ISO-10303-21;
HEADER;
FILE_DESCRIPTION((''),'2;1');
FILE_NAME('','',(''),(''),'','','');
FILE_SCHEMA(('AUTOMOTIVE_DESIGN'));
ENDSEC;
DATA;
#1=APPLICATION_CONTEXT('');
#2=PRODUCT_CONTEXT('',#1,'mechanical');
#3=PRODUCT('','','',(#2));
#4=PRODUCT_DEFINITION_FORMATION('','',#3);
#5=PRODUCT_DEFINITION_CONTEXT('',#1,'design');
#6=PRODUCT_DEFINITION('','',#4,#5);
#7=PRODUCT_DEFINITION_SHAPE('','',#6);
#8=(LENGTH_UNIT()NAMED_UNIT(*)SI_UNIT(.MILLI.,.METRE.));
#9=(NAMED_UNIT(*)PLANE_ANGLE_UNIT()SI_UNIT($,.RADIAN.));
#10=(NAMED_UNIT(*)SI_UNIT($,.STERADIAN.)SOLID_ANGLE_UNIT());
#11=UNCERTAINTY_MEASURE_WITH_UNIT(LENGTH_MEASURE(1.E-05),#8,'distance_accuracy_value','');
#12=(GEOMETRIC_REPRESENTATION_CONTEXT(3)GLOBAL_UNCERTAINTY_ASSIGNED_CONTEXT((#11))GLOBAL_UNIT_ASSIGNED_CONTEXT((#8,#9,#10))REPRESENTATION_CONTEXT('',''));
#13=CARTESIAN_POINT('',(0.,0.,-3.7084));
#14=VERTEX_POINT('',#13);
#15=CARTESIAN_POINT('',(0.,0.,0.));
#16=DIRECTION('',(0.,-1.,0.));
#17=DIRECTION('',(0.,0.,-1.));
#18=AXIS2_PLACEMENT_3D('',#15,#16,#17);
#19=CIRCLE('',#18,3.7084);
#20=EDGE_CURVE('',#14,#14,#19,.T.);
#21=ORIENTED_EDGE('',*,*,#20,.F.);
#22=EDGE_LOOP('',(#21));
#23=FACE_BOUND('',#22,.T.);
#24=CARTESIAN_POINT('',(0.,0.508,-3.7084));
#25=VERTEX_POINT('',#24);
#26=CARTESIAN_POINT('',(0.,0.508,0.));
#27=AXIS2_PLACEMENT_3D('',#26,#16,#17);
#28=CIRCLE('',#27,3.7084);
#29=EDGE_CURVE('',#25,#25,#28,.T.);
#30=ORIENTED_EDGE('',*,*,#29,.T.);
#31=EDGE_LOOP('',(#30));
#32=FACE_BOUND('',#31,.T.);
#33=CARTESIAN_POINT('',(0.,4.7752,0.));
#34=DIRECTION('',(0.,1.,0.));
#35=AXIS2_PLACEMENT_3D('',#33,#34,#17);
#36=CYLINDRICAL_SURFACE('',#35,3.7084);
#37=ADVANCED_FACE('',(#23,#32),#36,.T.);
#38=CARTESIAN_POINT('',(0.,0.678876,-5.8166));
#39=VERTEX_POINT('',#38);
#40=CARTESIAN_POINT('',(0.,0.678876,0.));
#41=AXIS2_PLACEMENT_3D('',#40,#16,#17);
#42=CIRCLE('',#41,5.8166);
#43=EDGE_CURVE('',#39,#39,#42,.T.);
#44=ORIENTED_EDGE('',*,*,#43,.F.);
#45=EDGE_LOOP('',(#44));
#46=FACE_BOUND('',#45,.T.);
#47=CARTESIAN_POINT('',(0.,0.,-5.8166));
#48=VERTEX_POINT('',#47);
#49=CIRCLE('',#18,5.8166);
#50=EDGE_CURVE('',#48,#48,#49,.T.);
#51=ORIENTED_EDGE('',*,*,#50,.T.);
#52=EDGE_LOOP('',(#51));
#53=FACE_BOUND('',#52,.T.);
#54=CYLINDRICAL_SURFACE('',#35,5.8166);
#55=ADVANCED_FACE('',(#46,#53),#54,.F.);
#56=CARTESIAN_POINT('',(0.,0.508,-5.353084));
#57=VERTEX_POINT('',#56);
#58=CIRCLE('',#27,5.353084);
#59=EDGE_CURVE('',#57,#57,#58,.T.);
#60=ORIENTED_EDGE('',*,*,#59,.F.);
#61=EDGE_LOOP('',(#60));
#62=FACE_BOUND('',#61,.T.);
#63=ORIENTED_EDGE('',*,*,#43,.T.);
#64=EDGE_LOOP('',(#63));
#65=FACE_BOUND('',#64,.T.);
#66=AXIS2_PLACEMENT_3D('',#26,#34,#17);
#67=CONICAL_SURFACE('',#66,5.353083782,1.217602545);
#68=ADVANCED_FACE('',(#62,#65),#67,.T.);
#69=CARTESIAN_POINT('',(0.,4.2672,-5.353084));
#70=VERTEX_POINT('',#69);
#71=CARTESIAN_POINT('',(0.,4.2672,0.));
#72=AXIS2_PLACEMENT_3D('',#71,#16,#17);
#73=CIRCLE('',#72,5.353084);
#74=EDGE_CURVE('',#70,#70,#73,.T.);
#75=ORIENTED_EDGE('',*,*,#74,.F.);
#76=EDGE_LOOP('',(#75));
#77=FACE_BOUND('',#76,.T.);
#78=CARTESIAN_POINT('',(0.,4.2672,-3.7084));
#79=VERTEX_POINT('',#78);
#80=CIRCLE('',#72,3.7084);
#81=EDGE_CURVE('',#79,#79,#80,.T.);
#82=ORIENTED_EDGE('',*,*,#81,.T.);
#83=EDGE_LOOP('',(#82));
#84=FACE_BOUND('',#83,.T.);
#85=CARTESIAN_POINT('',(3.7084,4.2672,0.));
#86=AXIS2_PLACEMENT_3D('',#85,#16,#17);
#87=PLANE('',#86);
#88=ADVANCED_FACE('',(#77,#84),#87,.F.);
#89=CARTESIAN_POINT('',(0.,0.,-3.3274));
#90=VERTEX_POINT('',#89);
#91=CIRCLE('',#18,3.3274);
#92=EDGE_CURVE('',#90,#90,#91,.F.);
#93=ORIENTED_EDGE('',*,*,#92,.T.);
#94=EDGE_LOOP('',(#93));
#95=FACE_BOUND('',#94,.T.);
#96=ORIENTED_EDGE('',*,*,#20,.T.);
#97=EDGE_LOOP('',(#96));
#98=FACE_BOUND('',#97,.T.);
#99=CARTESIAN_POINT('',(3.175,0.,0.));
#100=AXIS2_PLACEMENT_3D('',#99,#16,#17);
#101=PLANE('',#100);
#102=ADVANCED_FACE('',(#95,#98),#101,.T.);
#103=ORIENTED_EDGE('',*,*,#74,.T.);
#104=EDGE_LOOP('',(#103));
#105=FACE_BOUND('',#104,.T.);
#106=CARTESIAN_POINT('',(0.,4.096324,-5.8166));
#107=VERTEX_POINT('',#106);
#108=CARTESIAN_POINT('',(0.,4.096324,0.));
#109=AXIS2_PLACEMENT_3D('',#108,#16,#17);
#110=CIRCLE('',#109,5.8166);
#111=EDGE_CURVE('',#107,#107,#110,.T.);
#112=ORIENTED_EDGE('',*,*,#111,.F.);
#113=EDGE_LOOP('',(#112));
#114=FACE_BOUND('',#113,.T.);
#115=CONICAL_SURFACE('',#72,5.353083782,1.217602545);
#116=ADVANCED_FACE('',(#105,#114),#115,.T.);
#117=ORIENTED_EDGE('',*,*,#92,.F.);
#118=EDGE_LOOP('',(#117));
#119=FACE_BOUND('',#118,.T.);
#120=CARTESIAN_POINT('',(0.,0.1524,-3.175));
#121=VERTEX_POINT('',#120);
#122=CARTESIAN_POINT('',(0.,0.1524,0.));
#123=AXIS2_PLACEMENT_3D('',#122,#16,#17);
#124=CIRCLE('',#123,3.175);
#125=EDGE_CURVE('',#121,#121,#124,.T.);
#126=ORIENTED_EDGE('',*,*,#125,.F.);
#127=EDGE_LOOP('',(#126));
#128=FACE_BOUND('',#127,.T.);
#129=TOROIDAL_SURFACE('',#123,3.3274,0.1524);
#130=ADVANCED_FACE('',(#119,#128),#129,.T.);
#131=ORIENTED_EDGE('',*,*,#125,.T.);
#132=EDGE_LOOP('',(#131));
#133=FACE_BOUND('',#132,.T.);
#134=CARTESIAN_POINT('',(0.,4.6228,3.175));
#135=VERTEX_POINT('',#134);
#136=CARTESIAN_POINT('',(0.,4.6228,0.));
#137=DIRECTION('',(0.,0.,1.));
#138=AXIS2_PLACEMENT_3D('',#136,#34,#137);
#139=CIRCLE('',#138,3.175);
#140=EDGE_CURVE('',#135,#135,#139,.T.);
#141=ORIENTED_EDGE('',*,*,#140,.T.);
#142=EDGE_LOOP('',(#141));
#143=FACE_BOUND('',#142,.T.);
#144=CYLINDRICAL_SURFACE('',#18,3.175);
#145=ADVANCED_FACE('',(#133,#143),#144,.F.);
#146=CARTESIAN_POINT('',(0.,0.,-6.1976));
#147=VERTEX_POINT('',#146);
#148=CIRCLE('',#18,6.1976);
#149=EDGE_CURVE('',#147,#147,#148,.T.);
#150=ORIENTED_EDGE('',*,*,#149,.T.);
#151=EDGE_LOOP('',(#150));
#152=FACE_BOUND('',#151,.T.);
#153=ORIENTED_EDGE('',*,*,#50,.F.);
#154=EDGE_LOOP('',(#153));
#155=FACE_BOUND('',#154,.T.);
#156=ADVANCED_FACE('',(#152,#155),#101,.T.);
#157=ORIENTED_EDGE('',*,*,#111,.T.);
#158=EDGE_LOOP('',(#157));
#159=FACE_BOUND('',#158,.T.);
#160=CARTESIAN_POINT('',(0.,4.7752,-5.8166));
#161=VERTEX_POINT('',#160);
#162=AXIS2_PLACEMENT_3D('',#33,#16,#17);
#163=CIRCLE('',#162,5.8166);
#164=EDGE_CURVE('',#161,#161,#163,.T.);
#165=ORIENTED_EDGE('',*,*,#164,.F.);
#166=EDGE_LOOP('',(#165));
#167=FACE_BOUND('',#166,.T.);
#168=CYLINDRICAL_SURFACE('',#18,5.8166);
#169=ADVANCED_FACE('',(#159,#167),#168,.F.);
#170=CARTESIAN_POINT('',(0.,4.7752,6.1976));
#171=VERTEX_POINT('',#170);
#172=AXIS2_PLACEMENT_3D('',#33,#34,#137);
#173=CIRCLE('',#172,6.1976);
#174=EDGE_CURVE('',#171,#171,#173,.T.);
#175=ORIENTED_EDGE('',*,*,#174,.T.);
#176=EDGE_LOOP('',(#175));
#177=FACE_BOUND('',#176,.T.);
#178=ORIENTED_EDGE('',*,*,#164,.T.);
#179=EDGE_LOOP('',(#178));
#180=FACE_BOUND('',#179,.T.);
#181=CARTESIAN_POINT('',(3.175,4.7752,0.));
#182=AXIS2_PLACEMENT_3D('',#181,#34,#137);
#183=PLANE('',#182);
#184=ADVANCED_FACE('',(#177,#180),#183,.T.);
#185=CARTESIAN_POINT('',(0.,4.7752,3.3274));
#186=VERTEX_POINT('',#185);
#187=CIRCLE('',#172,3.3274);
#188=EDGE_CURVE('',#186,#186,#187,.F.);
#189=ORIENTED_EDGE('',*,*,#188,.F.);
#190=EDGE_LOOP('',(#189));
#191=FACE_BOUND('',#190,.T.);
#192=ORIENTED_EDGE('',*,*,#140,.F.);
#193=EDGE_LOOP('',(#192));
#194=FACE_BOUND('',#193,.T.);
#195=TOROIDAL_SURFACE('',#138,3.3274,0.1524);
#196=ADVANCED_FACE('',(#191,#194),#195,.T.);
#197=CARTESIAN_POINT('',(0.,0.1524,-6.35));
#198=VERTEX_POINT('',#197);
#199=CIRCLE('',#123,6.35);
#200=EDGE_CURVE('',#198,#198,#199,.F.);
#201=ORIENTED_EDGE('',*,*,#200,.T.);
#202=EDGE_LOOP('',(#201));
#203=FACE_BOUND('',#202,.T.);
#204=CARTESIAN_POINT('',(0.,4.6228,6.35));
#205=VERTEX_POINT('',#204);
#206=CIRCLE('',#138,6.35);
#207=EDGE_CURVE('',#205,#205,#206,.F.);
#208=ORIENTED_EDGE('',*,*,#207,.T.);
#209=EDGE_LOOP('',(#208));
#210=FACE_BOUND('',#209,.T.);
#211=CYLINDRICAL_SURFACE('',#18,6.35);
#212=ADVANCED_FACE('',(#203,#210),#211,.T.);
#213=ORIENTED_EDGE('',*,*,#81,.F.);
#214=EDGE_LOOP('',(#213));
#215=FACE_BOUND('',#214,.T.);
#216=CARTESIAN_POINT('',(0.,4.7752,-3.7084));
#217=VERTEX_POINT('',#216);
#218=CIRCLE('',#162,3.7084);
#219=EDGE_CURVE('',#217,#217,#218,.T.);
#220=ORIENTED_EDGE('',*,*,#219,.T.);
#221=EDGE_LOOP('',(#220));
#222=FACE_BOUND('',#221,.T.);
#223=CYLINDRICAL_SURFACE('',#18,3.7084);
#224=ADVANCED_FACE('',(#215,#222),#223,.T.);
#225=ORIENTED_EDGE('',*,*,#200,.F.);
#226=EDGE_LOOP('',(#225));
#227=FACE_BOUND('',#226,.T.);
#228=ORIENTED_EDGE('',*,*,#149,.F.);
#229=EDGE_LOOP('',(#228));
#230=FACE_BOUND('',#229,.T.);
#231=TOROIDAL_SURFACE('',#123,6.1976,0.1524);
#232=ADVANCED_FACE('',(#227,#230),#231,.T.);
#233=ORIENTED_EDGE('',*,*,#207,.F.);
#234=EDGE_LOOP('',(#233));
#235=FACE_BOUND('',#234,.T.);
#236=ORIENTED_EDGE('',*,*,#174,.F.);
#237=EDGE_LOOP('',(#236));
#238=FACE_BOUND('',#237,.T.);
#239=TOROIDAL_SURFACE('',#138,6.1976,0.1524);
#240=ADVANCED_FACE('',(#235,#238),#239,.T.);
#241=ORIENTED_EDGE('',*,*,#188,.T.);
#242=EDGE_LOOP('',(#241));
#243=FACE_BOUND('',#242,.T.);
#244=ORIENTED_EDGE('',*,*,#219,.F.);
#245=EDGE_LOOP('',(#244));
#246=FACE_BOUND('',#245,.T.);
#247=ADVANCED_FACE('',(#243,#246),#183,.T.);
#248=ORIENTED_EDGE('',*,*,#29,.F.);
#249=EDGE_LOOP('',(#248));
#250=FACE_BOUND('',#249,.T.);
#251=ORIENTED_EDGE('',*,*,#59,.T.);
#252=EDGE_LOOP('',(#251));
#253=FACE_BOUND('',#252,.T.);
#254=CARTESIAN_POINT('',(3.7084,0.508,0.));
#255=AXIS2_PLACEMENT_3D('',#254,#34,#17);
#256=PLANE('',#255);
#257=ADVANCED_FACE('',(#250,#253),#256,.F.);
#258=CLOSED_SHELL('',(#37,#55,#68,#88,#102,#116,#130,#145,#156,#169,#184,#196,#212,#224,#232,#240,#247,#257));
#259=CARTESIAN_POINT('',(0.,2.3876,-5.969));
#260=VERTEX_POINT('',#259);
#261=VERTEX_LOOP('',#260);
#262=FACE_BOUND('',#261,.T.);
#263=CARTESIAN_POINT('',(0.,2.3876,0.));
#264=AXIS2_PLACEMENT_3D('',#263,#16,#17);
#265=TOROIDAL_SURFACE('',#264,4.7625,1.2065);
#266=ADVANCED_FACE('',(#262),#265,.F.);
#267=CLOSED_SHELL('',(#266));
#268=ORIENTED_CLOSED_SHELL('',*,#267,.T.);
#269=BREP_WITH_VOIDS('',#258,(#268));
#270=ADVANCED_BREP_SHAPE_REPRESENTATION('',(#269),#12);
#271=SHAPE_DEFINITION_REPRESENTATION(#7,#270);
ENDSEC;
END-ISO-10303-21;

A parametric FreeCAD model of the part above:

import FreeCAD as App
import Part
import Sketcher

V = App.Vector
Q = App.Units.Quantity


def edges_at(feature, points):
    """Names of the edges that pass closest to the given points."""
    edges = feature.Shape.Edges
    near = lambda p: min(range(len(edges)), key=lambda i: edges[i].distToShape(Part.Vertex(*p))[0])
    return sorted({f"Edge{near(p) + 1}" for p in points})


def add_polygon(sketch, points):
    """Adds a closed chain of lines whose ends are joined by coincident constraints."""
    first, n = sketch.GeometryCount, len(points)
    for a, b in zip(points, points[1:] + points[:1]):
        sketch.addGeometry(Part.LineSegment(App.Vector(*a, 0), App.Vector(*b, 0)), False)
    for i in range(n):
        sketch.addConstraint(Sketcher.Constraint("Coincident", first + i, 2, first + (i + 1) % n, 1))

doc = App.newDocument("Part")
body = doc.addObject("PartDesign::Body", "Body")

sketch1 = body.newObject("Sketcher::SketchObject", "Sketch")
sketch1.AttachmentSupport = (doc.getObject("XY_Plane"), [""])
sketch1.MapMode = "FlatFace"
add_polygon(sketch1, [(3.2, 4.8), (3.2, 0), (6.3, 0), (6.3, 4.8)])
sketch1.addGeometry(Part.Circle(V(4.8, 2.4, 0), V(0, 0, 1), 1.2), False)
sketch1.addConstraint([
    Sketcher.Constraint("Vertical", 0),
    Sketcher.Constraint("Horizontal", 1),
    Sketcher.Constraint("Vertical", 2),
    Sketcher.Constraint("Horizontal", 3),
    Sketcher.Constraint("PointOnObject", 0, 2, -1),
    Sketcher.Constraint("Diameter", 4, Q("0.095 in")),
    Sketcher.Constraint("DistanceX", 1, 1, 1, 2, Q("0.125 in")),
    Sketcher.Constraint("DistanceY", 0, 2, 0, 1, Q("0.188 in")),
    Sketcher.Constraint("DistanceX", -1, 1, 1, 2, Q("0.25 in")),
    Sketcher.Constraint("DistanceX", -1, 1, 4, 3, Q("0.1875 in")),
    Sketcher.Constraint("DistanceY", -1, 1, 4, 3, Q("0.094 in")),
])
revolution = body.newObject("PartDesign::Revolution", "Revolution")
revolution.Profile = sketch1
revolution.ReferenceAxis = (sketch1, ["V_Axis"])
revolution.Angle = 360

sketch2 = body.newObject("Sketcher::SketchObject", "Sketch001")
sketch2.AttachmentSupport = (doc.getObject("XY_Plane"), [""])
sketch2.MapMode = "FlatFace"
add_polygon(sketch2, [(3.71, 4.78), (3.71, 4.27), (5.35, 4.27), (5.82, 4.1), (5.82, 4.78)])
sketch2.addConstraint([
    Sketcher.Constraint("Vertical", 0),
    Sketcher.Constraint("Horizontal", 1),
    Sketcher.Constraint("Vertical", 3),
    Sketcher.Constraint("Horizontal", 4),
    Sketcher.Constraint("DistanceY", 0, 2, 0, 1, Q("0.02 in")),
    Sketcher.Constraint("DistanceX", 4, 2, 4, 1, Q("0.083 in")),
    Sketcher.Constraint("DistanceX", -1, 1, 0, 2, Q("0.146 in")),
    Sketcher.Constraint("DistanceY", -1, 1, 0, 2, Q("0.168 in")),
    Sketcher.Constraint("Distance", 2, 0.49401),
    Sketcher.Constraint("DistanceX", 1, 1, 1, 2, 1.644684),
])
groove = body.newObject("PartDesign::Groove", "Groove")
groove.Profile = sketch2
groove.ReferenceAxis = (sketch2, ["V_Axis"])
groove.Angle = 360
doc.recompute()

datumplane = body.newObject("PartDesign::Plane", "DatumPlane")
datumplane.AttachmentSupport = (doc.getObject("XZ_Plane"), [""])
datumplane.MapMode = "FlatFace"
datumplane.AttachmentOffset = App.Placement(V(0, 0, -0.094 * 25.4), App.Rotation())
mirrored = body.newObject("PartDesign::Mirrored", "Mirrored")
mirrored.Originals = [groove]
mirrored.MirrorPlane = (datumplane, [""])
body.Tip = mirrored
doc.recompute()

fillet = body.newObject("PartDesign::Fillet", "Fillet")
fillet.Base = (mirrored, edges_at(mirrored, [
    (-3.175, 4.775, 0),
    (-6.35, 4.775, 0),
    (-6.35, 0, 0),
    (-3.175, 0, 0),
]))
fillet.Radius = Q("0.006 in")

doc.recompute()
